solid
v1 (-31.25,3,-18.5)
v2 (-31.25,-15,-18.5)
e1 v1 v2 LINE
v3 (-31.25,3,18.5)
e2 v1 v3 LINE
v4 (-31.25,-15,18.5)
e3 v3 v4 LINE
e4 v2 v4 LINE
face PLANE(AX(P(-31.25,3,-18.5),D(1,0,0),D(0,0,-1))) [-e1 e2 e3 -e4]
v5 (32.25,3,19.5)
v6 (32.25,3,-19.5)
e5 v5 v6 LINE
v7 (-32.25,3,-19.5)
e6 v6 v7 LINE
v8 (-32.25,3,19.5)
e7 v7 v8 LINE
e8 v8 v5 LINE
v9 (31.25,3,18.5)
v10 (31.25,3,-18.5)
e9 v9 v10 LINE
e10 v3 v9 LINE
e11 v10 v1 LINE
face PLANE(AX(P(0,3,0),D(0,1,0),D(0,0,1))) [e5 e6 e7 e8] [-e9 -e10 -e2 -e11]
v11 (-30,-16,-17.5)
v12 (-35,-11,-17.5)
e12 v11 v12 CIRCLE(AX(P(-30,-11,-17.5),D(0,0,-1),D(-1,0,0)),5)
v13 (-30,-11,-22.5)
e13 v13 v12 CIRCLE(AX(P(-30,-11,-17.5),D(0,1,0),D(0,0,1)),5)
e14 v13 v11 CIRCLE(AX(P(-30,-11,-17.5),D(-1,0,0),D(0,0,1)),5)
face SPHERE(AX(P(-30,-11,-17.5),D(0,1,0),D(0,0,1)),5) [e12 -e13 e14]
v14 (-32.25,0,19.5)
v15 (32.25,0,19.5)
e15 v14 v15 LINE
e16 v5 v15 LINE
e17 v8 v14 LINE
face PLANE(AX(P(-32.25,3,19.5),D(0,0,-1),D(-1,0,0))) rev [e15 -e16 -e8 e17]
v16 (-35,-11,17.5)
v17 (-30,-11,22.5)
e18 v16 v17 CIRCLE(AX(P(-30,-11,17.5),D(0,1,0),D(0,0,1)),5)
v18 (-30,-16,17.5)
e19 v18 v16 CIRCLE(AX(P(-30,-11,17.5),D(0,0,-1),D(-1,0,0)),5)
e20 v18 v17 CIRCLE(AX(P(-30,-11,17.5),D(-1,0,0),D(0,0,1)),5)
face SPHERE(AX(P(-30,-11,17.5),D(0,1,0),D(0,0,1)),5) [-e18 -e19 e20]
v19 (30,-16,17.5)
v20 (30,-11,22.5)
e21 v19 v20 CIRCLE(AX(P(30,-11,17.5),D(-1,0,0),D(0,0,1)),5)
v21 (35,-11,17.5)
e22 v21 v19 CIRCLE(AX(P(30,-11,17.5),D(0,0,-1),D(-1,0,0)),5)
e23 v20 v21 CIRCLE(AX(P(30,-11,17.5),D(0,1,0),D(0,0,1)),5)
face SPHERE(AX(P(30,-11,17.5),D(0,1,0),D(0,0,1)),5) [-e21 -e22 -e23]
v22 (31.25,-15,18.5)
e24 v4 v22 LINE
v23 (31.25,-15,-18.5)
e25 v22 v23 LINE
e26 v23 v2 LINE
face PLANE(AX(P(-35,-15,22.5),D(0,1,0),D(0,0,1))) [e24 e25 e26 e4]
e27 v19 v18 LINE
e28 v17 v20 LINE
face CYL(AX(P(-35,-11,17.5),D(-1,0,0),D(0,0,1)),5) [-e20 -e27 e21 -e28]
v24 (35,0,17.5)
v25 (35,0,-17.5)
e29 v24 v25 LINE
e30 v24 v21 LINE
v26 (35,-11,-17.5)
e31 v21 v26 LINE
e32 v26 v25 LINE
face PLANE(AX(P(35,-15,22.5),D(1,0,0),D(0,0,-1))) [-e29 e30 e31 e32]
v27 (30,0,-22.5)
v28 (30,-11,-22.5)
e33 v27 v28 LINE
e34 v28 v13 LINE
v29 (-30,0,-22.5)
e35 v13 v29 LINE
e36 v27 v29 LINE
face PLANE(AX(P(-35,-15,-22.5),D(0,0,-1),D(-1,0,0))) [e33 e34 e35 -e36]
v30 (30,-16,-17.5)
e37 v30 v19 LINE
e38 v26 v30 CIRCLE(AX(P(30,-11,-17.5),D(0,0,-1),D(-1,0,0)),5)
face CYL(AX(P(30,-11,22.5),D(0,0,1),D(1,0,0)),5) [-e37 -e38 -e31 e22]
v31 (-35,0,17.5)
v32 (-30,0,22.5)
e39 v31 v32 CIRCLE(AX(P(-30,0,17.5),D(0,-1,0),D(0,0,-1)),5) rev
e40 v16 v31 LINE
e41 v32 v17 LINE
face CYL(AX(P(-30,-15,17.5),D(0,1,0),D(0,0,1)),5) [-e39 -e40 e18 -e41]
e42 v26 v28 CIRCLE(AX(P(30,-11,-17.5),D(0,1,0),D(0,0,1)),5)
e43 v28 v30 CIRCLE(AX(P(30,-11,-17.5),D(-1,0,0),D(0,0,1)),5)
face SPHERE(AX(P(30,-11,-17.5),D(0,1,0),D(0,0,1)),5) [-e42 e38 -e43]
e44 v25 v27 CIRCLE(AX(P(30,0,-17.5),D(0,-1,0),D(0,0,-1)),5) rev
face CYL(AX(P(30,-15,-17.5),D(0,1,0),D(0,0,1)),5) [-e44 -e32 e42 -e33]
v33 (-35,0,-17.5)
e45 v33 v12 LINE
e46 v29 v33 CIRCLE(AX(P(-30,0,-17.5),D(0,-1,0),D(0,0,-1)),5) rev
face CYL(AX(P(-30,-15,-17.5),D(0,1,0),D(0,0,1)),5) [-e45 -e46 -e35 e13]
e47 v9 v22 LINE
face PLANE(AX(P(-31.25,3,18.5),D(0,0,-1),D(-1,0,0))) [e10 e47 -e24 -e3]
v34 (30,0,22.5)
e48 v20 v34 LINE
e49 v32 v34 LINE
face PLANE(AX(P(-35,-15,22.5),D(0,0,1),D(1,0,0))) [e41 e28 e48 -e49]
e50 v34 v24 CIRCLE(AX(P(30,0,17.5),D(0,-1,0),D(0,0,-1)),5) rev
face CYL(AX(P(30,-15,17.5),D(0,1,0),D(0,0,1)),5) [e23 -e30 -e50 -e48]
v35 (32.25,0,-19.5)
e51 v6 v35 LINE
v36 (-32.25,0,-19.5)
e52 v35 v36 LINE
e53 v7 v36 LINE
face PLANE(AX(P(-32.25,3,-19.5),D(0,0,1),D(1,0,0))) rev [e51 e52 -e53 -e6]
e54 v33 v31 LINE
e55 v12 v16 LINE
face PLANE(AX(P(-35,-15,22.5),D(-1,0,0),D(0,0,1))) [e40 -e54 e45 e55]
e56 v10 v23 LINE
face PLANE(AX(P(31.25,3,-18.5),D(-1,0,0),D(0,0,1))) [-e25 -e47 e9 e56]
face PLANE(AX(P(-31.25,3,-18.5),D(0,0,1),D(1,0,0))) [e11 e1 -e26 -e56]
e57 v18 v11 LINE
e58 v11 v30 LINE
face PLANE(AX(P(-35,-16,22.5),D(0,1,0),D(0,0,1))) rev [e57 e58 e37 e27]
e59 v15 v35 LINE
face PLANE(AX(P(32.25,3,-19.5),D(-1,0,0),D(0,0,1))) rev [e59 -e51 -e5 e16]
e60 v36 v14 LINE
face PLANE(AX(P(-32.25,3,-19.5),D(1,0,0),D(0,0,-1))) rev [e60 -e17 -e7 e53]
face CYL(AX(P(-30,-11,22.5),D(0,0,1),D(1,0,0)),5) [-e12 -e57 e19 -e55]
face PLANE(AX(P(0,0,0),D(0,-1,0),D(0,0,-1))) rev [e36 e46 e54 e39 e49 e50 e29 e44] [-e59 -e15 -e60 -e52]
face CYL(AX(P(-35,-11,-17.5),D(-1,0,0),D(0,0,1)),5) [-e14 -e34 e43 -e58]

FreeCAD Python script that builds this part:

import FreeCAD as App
import Part
import Sketcher

V = App.Vector
Q = App.Units.Quantity


def edges_at(feature, points):
    """Names of the edges that pass closest to the given points."""
    edges = feature.Shape.Edges
    near = lambda p: min(range(len(edges)), key=lambda i: edges[i].distToShape(Part.Vertex(*p))[0])
    return sorted({f"Edge{near(p) + 1}" for p in points})

doc = App.newDocument("Part")
body = doc.addObject("PartDesign::Body", "Body")

# Sketch on XZ plane
sketch1 = body.newObject("Sketcher::SketchObject", "Sketch")
sketch1.AttachmentSupport = (doc.getObject("XZ_Plane"), [""])
sketch1.MapMode = "FlatFace"
sketch1.addGeometry([
    Part.LineSegment(V(-32, -20, 0), V(-32, 20, 0)),  # 0
    Part.LineSegment(V(-32, 20, 0), V(32, 20, 0)),  # 1
    Part.LineSegment(V(32, 20, 0), V(32, -20, 0)),  # 2
    Part.LineSegment(V(32, -20, 0), V(-32, -20, 0)),  # 3
    Part.LineSegment(V(31, 18, 0), V(-31, 18, 0)),  # 4
    Part.LineSegment(V(-31, 18, 0), V(-31, -18, 0)),  # 5
    Part.LineSegment(V(-31, -18, 0), V(31, -18, 0)),  # 6
    Part.LineSegment(V(31, -18, 0), V(31, 18, 0)),  # 7
], False)
sketch1.addConstraint([
    Sketcher.Constraint("Coincident", 0, 2, 1, 1),
    Sketcher.Constraint("Coincident", 1, 2, 2, 1),
    Sketcher.Constraint("Coincident", 2, 2, 3, 1),
    Sketcher.Constraint("Coincident", 3, 2, 0, 1),
    Sketcher.Constraint("Coincident", 4, 2, 5, 1),
    Sketcher.Constraint("Coincident", 5, 2, 6, 1),
    Sketcher.Constraint("Coincident", 6, 2, 7, 1),
    Sketcher.Constraint("Coincident", 7, 2, 4, 1),
    Sketcher.Constraint("Vertical", 0),
    Sketcher.Constraint("Horizontal", 1),
    Sketcher.Constraint("Vertical", 2),
    Sketcher.Constraint("Horizontal", 3),
    Sketcher.Constraint("Horizontal", 4),
    Sketcher.Constraint("Vertical", 5),
    Sketcher.Constraint("Horizontal", 6),
    Sketcher.Constraint("Vertical", 7),
    Sketcher.Constraint("Symmetric", 0, 2, 2, 2, -1, 1),
    Sketcher.Constraint("Symmetric", 4, 2, 6, 2, -1, 1),
    Sketcher.Constraint("DistanceY", 0, 1, 0, 2, Q("39 mm")),
    Sketcher.Constraint("DistanceY", 5, 2, 5, 1, Q("37 mm")),
    Sketcher.Constraint("DistanceX", 1, 1, 1, 2, Q("64.5 mm")),
    Sketcher.Constraint("DistanceX", 4, 2, 4, 1, Q("62.5 mm")),
])
pad1 = body.newObject("PartDesign::Pad", "Pad")
pad1.Profile = sketch1
pad1.Length = 3
pad1.Reversed = True

# Sketch on XZ plane
sketch2 = body.newObject("Sketcher::SketchObject", "Sketch001")
sketch2.AttachmentSupport = (doc.getObject("XZ_Plane"), [""])
sketch2.MapMode = "FlatFace"
sketch2.addGeometry([
    Part.LineSegment(V(-35, -22, 0), V(-35, 22, 0)),  # 0
    Part.LineSegment(V(-35, 22, 0), V(35, 22, 0)),  # 1
    Part.LineSegment(V(35, 22, 0), V(35, -22, 0)),  # 2
    Part.LineSegment(V(35, -22, 0), V(-35, -22, 0)),  # 3
    Part.LineSegment(V(31, 18, 0), V(-31, 18, 0)),  # 4
    Part.LineSegment(V(-31, 18, 0), V(-31, -18, 0)),  # 5
    Part.LineSegment(V(-31, -18, 0), V(31, -18, 0)),  # 6
    Part.LineSegment(V(31, -18, 0), V(31, 18, 0)),  # 7
], False)
sketch2.addConstraint([
    Sketcher.Constraint("Coincident", 0, 2, 1, 1),
    Sketcher.Constraint("Coincident", 1, 2, 2, 1),
    Sketcher.Constraint("Coincident", 2, 2, 3, 1),
    Sketcher.Constraint("Coincident", 3, 2, 0, 1),
    Sketcher.Constraint("Coincident", 4, 2, 5, 1),
    Sketcher.Constraint("Coincident", 5, 2, 6, 1),
    Sketcher.Constraint("Coincident", 6, 2, 7, 1),
    Sketcher.Constraint("Coincident", 7, 2, 4, 1),
    Sketcher.Constraint("Vertical", 0),
    Sketcher.Constraint("Horizontal", 1),
    Sketcher.Constraint("Vertical", 2),
    Sketcher.Constraint("Horizontal", 3),
    Sketcher.Constraint("Horizontal", 4),
    Sketcher.Constraint("Vertical", 5),
    Sketcher.Constraint("Horizontal", 6),
    Sketcher.Constraint("Vertical", 7),
    Sketcher.Constraint("Symmetric", 0, 2, 2, 2, -1, 1),
    Sketcher.Constraint("Symmetric", 4, 2, 6, 2, -1, 1),
    Sketcher.Constraint("DistanceX", 1, 1, 1, 2, Q("70 mm")),
    Sketcher.Constraint("DistanceY", 0, 1, 0, 2, Q("45 mm")),
    Sketcher.Constraint("DistanceY", 5, 2, 5, 1, Q("37 mm")),
    Sketcher.Constraint("DistanceX", 4, 2, 4, 1, Q("62.5 mm")),
])
pad2 = body.newObject("PartDesign::Pad", "Pad001")
pad2.Profile = sketch2
pad2.Length = 15

# Sketch on XY plane
sketch3 = body.newObject("Sketcher::SketchObject", "Sketch002")
sketch3.AttachmentSupport = (doc.getObject("XY_Plane"), [""])
sketch3.MapMode = "FlatFace"
sketch3.addGeometry([
    Part.LineSegment(V(-35, -15, 0), V(-35, -16, 0)),
    Part.LineSegment(V(-35, -16, 0), V(35, -16, 0)),
    Part.LineSegment(V(35, -16, 0), V(35, -15, 0)),
    Part.LineSegment(V(35, -15, 0), V(-35, -15, 0)),
], False)
sketch3.addConstraint([
    Sketcher.Constraint("Coincident", 0, 2, 1, 1),
    Sketcher.Constraint("Coincident", 1, 2, 2, 1),
    Sketcher.Constraint("Coincident", 2, 2, 3, 1),
    Sketcher.Constraint("Coincident", 3, 2, 0, 1),
    Sketcher.Constraint("Vertical", 0),
    Sketcher.Constraint("Horizontal", 1),
    Sketcher.Constraint("Vertical", 2),
    Sketcher.Constraint("Horizontal", 3),
    Sketcher.Constraint("DistanceX", 1, 1, 1, 2, Q("70 mm")),
    Sketcher.Constraint("DistanceY", 0, 2, 0, 1, Q("1 mm")),
    Sketcher.Constraint("DistanceX", 0, 2, -1, 1, Q("35 mm")),
    Sketcher.Constraint("DistanceY", 0, 2, -1, 1, Q("16 mm")),
])
pad3 = body.newObject("PartDesign::Pad", "Pad002")
pad3.Profile = sketch3
pad3.Length = 45
pad3.Midplane = True
doc.recompute()

fillet = body.newObject("PartDesign::Fillet", "Fillet")
fillet.Base = (pad3, edges_at(pad3, [
    (35, -8, -22.5),
    (35, -8, 22.5),
    (-35, -8, 22.5),
    (-35, -8, -22.5),
]))
fillet.Radius = 5
doc.recompute()

fillet2 = body.newObject("PartDesign::Fillet", "Fillet001")
fillet2.Base = (fillet, edges_at(fillet, [
    (0, -16, 22.5),
    (35, -16, 0),
    (0, -16, -22.5),
    (-35, -16, 0),
    (-33.536, -16, -21.036),
    (-33.536, -16, 21.036),
    (33.536, -16, -21.036),
    (33.536, -16, 21.036),
]))
fillet2.Radius = 5

doc.recompute()
